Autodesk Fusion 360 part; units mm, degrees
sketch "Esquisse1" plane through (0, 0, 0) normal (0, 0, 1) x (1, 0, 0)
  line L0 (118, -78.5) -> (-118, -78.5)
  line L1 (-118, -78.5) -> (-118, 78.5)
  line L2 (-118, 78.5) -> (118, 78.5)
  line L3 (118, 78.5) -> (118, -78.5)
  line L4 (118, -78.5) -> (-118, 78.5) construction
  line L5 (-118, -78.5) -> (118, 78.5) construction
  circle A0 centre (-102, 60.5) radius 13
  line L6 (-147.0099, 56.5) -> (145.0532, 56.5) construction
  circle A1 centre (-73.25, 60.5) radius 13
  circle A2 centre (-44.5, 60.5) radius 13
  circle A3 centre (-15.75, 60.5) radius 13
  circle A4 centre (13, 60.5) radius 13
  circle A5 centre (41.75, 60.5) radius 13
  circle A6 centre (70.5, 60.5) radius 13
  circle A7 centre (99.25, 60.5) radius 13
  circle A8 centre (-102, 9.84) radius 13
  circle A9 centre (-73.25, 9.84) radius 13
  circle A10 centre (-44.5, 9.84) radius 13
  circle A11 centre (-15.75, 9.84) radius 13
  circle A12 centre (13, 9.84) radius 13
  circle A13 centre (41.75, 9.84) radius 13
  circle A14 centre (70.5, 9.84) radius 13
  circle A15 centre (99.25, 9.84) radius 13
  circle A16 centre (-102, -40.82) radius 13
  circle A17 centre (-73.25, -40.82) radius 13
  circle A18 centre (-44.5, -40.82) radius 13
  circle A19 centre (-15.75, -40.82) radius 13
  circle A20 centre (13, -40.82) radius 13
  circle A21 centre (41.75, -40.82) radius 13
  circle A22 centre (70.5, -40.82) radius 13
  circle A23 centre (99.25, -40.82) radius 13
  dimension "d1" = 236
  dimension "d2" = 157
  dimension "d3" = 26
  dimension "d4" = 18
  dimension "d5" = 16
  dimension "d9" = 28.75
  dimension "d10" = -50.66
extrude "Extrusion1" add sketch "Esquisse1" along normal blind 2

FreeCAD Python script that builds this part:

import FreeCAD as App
import Part
import Sketcher

doc = App.newDocument("Part")
body = doc.addObject("PartDesign::Body", "Body")

sketch1 = body.newObject("Sketcher::SketchObject", "Sketch")
sketch1.AttachmentSupport = (doc.getObject("XY_Plane"), [""])
sketch1.MapMode = "FlatFace"
sketch1.addGeometry(Part.LineSegment(App.Vector(-118, -78, 0), App.Vector(118, -78, 0)), False)
sketch1.addGeometry(Part.LineSegment(App.Vector(118, -78, 0), App.Vector(118, 78, 0)), False)
sketch1.addGeometry(Part.LineSegment(App.Vector(118, 78, 0), App.Vector(-118, 78, 0)), False)
sketch1.addGeometry(Part.LineSegment(App.Vector(-118, 78, 0), App.Vector(-118, -78, 0)), False)
sketch1.addGeometry(Part.Circle(App.Vector(-102, -41, 0), App.Vector(0, 0, 1), 13), False)
sketch1.addGeometry(Part.Circle(App.Vector(-73, -41, 0), App.Vector(0, 0, 1), 13), False)
sketch1.addGeometry(Part.Circle(App.Vector(-44, -41, 0), App.Vector(0, 0, 1), 13), False)
sketch1.addGeometry(Part.Circle(App.Vector(-16, -41, 0), App.Vector(0, 0, 1), 13), False)
sketch1.addGeometry(Part.Circle(App.Vector(13, -41, 0), App.Vector(0, 0, 1), 13), False)
sketch1.addGeometry(Part.Circle(App.Vector(42, -41, 0), App.Vector(0, 0, 1), 13), False)
sketch1.addGeometry(Part.Circle(App.Vector(70, -41, 0), App.Vector(0, 0, 1), 13), False)
sketch1.addGeometry(Part.Circle(App.Vector(99, -41, 0), App.Vector(0, 0, 1), 13), False)
sketch1.addGeometry(Part.Circle(App.Vector(-102, 10, 0), App.Vector(0, 0, 1), 13), False)
sketch1.addGeometry(Part.Circle(App.Vector(-73, 10, 0), App.Vector(0, 0, 1), 13), False)
sketch1.addGeometry(Part.Circle(App.Vector(-44, 10, 0), App.Vector(0, 0, 1), 13), False)
sketch1.addGeometry(Part.Circle(App.Vector(-16, 10, 0), App.Vector(0, 0, 1), 13), False)
sketch1.addGeometry(Part.Circle(App.Vector(-102, 60, 0), App.Vector(0, 0, 1), 13), False)
sketch1.addGeometry(Part.Circle(App.Vector(-73, 60, 0), App.Vector(0, 0, 1), 13), False)
sketch1.addGeometry(Part.Circle(App.Vector(-44, 60, 0), App.Vector(0, 0, 1), 13), False)
sketch1.addGeometry(Part.Circle(App.Vector(-16, 60, 0), App.Vector(0, 0, 1), 13), False)
sketch1.addGeometry(Part.Circle(App.Vector(13, 10, 0), App.Vector(0, 0, 1), 13), False)
sketch1.addGeometry(Part.Circle(App.Vector(42, 10, 0), App.Vector(0, 0, 1), 13), False)
sketch1.addGeometry(Part.Circle(App.Vector(70, 10, 0), App.Vector(0, 0, 1), 13), False)
sketch1.addGeometry(Part.Circle(App.Vector(99, 10, 0), App.Vector(0, 0, 1), 13), False)
sketch1.addGeometry(Part.Circle(App.Vector(13, 60, 0), App.Vector(0, 0, 1), 13), False)
sketch1.addGeometry(Part.Circle(App.Vector(42, 60, 0), App.Vector(0, 0, 1), 13), False)
sketch1.addGeometry(Part.Circle(App.Vector(70, 60, 0), App.Vector(0, 0, 1), 13), False)
sketch1.addGeometry(Part.Circle(App.Vector(99, 60, 0), App.Vector(0, 0, 1), 13), False)
sketch1.addConstraint(Sketcher.Constraint("Coincident", 0, 2, 1, 1))
sketch1.addConstraint(Sketcher.Constraint("Coincident", 1, 2, 2, 1))
sketch1.addConstraint(Sketcher.Constraint("Coincident", 2, 2, 3, 1))
sketch1.addConstraint(Sketcher.Constraint("Coincident", 3, 2, 0, 1))
sketch1.addConstraint(Sketcher.Constraint("Horizontal", 0))
sketch1.addConstraint(Sketcher.Constraint("Vertical", 1))
sketch1.addConstraint(Sketcher.Constraint("Horizontal", 2))
sketch1.addConstraint(Sketcher.Constraint("Vertical", 3))
sketch1.addConstraint(Sketcher.Constraint("Equal", 4, 5))
sketch1.addConstraint(Sketcher.Constraint("Equal", 5, 6))
sketch1.addConstraint(Sketcher.Constraint("Equal", 6, 7))
sketch1.addConstraint(Sketcher.Constraint("Equal", 7, 8))
sketch1.addConstraint(Sketcher.Constraint("Equal", 8, 9))
sketch1.addConstraint(Sketcher.Constraint("Equal", 9, 10))
sketch1.addConstraint(Sketcher.Constraint("Equal", 10, 11))
sketch1.addConstraint(Sketcher.Constraint("Equal", 11, 12))
sketch1.addConstraint(Sketcher.Constraint("Equal", 12, 13))
sketch1.addConstraint(Sketcher.Constraint("Equal", 13, 14))
sketch1.addConstraint(Sketcher.Constraint("Equal", 14, 15))
sketch1.addConstraint(Sketcher.Constraint("Equal", 15, 16))
sketch1.addConstraint(Sketcher.Constraint("Equal", 16, 17))
sketch1.addConstraint(Sketcher.Constraint("Equal", 17, 18))
sketch1.addConstraint(Sketcher.Constraint("Equal", 18, 19))
sketch1.addConstraint(Sketcher.Constraint("Equal", 19, 20))
sketch1.addConstraint(Sketcher.Constraint("Equal", 20, 21))
sketch1.addConstraint(Sketcher.Constraint("Equal", 21, 22))
sketch1.addConstraint(Sketcher.Constraint("Equal", 22, 23))
sketch1.addConstraint(Sketcher.Constraint("Equal", 23, 24))
sketch1.addConstraint(Sketcher.Constraint("Equal", 24, 25))
sketch1.addConstraint(Sketcher.Constraint("Equal", 25, 26))
sketch1.addConstraint(Sketcher.Constraint("Equal", 26, 27))
sketch1.addConstraint(Sketcher.Constraint("Symmetric", 0, 2, 2, 2, -1, 1))
sketch1.addConstraint(Sketcher.Constraint("Horizontal", 4, 3, 5, 3))
sketch1.addConstraint(Sketcher.Constraint("Horizontal", 5, 3, 6, 3))
sketch1.addConstraint(Sketcher.Constraint("Horizontal", 6, 3, 7, 3))
sketch1.addConstraint(Sketcher.Constraint("Horizontal", 7, 3, 8, 3))
sketch1.addConstraint(Sketcher.Constraint("Horizontal", 8, 3, 9, 3))
sketch1.addConstraint(Sketcher.Constraint("Horizontal", 9, 3, 10, 3))
sketch1.addConstraint(Sketcher.Constraint("Horizontal", 10, 3, 11, 3))
sketch1.addConstraint(Sketcher.Constraint("Horizontal", 12, 3, 13, 3))
sketch1.addConstraint(Sketcher.Constraint("Horizontal", 13, 3, 14, 3))
sketch1.addConstraint(Sketcher.Constraint("Horizontal", 14, 3, 15, 3))
sketch1.addConstraint(Sketcher.Constraint("Horizontal", 16, 3, 17, 3))
sketch1.addConstraint(Sketcher.Constraint("Horizontal", 17, 3, 18, 3))
sketch1.addConstraint(Sketcher.Constraint("Horizontal", 18, 3, 19, 3))
sketch1.addConstraint(Sketcher.Constraint("Horizontal", 15, 3, 20, 3))
sketch1.addConstraint(Sketcher.Constraint("Horizontal", 20, 3, 21, 3))
sketch1.addConstraint(Sketcher.Constraint("Horizontal", 21, 3, 22, 3))
sketch1.addConstraint(Sketcher.Constraint("Horizontal", 22, 3, 23, 3))
sketch1.addConstraint(Sketcher.Constraint("Horizontal", 19, 3, 24, 3))
sketch1.addConstraint(Sketcher.Constraint("Horizontal", 24, 3, 25, 3))
sketch1.addConstraint(Sketcher.Constraint("Horizontal", 25, 3, 26, 3))
sketch1.addConstraint(Sketcher.Constraint("Horizontal", 26, 3, 27, 3))
sketch1.addConstraint(Sketcher.Constraint("Vertical", 4, 3, 12, 3))
sketch1.addConstraint(Sketcher.Constraint("Vertical", 5, 3, 13, 3))
sketch1.addConstraint(Sketcher.Constraint("Vertical", 6, 3, 14, 3))
sketch1.addConstraint(Sketcher.Constraint("Vertical", 7, 3, 15, 3))
sketch1.addConstraint(Sketcher.Constraint("Vertical", 12, 3, 16, 3))
sketch1.addConstraint(Sketcher.Constraint("Vertical", 13, 3, 17, 3))
sketch1.addConstraint(Sketcher.Constraint("Vertical", 14, 3, 18, 3))
sketch1.addConstraint(Sketcher.Constraint("Vertical", 15, 3, 19, 3))
sketch1.addConstraint(Sketcher.Constraint("Vertical", 8, 3, 20, 3))
sketch1.addConstraint(Sketcher.Constraint("Vertical", 9, 3, 21, 3))
sketch1.addConstraint(Sketcher.Constraint("Vertical", 10, 3, 22, 3))
sketch1.addConstraint(Sketcher.Constraint("Vertical", 11, 3, 23, 3))
sketch1.addConstraint(Sketcher.Constraint("Vertical", 20, 3, 24, 3))
sketch1.addConstraint(Sketcher.Constraint("Vertical", 21, 3, 25, 3))
sketch1.addConstraint(Sketcher.Constraint("Vertical", 22, 3, 26, 3))
sketch1.addConstraint(Sketcher.Constraint("Vertical", 23, 3, 27, 3))
sketch1.addConstraint(Sketcher.Constraint("Diameter", 4, 26.0))
sketch1.addConstraint(Sketcher.Constraint("DistanceX", 0, 1, 0, 2, 236.0))
sketch1.addConstraint(Sketcher.Constraint("DistanceY", 1, 1, 1, 2, 157.0))
sketch1.addConstraint(Sketcher.Constraint("DistanceY", 27, 3, 1, 2, 18.0))
sketch1.addConstraint(Sketcher.Constraint("DistanceX", 2, 2, 16, 3, 16.0))
sketch1.addConstraint(Sketcher.Constraint("DistanceX", 4, 3, 5, 3, 28.75))
sketch1.addConstraint(Sketcher.Constraint("DistanceX", 5, 3, 6, 3, 28.75))
sketch1.addConstraint(Sketcher.Constraint("DistanceX", 6, 3, 7, 3, 28.75))
sketch1.addConstraint(Sketcher.Constraint("DistanceX", 7, 3, 8, 3, 28.75))
sketch1.addConstraint(Sketcher.Constraint("DistanceX", 8, 3, 9, 3, 28.75))
sketch1.addConstraint(Sketcher.Constraint("DistanceX", 9, 3, 10, 3, 28.75))
sketch1.addConstraint(Sketcher.Constraint("DistanceX", 10, 3, 11, 3, 28.75))
sketch1.addConstraint(Sketcher.Constraint("DistanceY", 4, 3, 12, 3, 50.66))
sketch1.addConstraint(Sketcher.Constraint("DistanceY", 12, 3, 16, 3, 50.66))
pad1 = body.newObject("PartDesign::Pad", "Pad")
pad1.Profile = sketch1
pad1.Length = 2

doc.recompute()
